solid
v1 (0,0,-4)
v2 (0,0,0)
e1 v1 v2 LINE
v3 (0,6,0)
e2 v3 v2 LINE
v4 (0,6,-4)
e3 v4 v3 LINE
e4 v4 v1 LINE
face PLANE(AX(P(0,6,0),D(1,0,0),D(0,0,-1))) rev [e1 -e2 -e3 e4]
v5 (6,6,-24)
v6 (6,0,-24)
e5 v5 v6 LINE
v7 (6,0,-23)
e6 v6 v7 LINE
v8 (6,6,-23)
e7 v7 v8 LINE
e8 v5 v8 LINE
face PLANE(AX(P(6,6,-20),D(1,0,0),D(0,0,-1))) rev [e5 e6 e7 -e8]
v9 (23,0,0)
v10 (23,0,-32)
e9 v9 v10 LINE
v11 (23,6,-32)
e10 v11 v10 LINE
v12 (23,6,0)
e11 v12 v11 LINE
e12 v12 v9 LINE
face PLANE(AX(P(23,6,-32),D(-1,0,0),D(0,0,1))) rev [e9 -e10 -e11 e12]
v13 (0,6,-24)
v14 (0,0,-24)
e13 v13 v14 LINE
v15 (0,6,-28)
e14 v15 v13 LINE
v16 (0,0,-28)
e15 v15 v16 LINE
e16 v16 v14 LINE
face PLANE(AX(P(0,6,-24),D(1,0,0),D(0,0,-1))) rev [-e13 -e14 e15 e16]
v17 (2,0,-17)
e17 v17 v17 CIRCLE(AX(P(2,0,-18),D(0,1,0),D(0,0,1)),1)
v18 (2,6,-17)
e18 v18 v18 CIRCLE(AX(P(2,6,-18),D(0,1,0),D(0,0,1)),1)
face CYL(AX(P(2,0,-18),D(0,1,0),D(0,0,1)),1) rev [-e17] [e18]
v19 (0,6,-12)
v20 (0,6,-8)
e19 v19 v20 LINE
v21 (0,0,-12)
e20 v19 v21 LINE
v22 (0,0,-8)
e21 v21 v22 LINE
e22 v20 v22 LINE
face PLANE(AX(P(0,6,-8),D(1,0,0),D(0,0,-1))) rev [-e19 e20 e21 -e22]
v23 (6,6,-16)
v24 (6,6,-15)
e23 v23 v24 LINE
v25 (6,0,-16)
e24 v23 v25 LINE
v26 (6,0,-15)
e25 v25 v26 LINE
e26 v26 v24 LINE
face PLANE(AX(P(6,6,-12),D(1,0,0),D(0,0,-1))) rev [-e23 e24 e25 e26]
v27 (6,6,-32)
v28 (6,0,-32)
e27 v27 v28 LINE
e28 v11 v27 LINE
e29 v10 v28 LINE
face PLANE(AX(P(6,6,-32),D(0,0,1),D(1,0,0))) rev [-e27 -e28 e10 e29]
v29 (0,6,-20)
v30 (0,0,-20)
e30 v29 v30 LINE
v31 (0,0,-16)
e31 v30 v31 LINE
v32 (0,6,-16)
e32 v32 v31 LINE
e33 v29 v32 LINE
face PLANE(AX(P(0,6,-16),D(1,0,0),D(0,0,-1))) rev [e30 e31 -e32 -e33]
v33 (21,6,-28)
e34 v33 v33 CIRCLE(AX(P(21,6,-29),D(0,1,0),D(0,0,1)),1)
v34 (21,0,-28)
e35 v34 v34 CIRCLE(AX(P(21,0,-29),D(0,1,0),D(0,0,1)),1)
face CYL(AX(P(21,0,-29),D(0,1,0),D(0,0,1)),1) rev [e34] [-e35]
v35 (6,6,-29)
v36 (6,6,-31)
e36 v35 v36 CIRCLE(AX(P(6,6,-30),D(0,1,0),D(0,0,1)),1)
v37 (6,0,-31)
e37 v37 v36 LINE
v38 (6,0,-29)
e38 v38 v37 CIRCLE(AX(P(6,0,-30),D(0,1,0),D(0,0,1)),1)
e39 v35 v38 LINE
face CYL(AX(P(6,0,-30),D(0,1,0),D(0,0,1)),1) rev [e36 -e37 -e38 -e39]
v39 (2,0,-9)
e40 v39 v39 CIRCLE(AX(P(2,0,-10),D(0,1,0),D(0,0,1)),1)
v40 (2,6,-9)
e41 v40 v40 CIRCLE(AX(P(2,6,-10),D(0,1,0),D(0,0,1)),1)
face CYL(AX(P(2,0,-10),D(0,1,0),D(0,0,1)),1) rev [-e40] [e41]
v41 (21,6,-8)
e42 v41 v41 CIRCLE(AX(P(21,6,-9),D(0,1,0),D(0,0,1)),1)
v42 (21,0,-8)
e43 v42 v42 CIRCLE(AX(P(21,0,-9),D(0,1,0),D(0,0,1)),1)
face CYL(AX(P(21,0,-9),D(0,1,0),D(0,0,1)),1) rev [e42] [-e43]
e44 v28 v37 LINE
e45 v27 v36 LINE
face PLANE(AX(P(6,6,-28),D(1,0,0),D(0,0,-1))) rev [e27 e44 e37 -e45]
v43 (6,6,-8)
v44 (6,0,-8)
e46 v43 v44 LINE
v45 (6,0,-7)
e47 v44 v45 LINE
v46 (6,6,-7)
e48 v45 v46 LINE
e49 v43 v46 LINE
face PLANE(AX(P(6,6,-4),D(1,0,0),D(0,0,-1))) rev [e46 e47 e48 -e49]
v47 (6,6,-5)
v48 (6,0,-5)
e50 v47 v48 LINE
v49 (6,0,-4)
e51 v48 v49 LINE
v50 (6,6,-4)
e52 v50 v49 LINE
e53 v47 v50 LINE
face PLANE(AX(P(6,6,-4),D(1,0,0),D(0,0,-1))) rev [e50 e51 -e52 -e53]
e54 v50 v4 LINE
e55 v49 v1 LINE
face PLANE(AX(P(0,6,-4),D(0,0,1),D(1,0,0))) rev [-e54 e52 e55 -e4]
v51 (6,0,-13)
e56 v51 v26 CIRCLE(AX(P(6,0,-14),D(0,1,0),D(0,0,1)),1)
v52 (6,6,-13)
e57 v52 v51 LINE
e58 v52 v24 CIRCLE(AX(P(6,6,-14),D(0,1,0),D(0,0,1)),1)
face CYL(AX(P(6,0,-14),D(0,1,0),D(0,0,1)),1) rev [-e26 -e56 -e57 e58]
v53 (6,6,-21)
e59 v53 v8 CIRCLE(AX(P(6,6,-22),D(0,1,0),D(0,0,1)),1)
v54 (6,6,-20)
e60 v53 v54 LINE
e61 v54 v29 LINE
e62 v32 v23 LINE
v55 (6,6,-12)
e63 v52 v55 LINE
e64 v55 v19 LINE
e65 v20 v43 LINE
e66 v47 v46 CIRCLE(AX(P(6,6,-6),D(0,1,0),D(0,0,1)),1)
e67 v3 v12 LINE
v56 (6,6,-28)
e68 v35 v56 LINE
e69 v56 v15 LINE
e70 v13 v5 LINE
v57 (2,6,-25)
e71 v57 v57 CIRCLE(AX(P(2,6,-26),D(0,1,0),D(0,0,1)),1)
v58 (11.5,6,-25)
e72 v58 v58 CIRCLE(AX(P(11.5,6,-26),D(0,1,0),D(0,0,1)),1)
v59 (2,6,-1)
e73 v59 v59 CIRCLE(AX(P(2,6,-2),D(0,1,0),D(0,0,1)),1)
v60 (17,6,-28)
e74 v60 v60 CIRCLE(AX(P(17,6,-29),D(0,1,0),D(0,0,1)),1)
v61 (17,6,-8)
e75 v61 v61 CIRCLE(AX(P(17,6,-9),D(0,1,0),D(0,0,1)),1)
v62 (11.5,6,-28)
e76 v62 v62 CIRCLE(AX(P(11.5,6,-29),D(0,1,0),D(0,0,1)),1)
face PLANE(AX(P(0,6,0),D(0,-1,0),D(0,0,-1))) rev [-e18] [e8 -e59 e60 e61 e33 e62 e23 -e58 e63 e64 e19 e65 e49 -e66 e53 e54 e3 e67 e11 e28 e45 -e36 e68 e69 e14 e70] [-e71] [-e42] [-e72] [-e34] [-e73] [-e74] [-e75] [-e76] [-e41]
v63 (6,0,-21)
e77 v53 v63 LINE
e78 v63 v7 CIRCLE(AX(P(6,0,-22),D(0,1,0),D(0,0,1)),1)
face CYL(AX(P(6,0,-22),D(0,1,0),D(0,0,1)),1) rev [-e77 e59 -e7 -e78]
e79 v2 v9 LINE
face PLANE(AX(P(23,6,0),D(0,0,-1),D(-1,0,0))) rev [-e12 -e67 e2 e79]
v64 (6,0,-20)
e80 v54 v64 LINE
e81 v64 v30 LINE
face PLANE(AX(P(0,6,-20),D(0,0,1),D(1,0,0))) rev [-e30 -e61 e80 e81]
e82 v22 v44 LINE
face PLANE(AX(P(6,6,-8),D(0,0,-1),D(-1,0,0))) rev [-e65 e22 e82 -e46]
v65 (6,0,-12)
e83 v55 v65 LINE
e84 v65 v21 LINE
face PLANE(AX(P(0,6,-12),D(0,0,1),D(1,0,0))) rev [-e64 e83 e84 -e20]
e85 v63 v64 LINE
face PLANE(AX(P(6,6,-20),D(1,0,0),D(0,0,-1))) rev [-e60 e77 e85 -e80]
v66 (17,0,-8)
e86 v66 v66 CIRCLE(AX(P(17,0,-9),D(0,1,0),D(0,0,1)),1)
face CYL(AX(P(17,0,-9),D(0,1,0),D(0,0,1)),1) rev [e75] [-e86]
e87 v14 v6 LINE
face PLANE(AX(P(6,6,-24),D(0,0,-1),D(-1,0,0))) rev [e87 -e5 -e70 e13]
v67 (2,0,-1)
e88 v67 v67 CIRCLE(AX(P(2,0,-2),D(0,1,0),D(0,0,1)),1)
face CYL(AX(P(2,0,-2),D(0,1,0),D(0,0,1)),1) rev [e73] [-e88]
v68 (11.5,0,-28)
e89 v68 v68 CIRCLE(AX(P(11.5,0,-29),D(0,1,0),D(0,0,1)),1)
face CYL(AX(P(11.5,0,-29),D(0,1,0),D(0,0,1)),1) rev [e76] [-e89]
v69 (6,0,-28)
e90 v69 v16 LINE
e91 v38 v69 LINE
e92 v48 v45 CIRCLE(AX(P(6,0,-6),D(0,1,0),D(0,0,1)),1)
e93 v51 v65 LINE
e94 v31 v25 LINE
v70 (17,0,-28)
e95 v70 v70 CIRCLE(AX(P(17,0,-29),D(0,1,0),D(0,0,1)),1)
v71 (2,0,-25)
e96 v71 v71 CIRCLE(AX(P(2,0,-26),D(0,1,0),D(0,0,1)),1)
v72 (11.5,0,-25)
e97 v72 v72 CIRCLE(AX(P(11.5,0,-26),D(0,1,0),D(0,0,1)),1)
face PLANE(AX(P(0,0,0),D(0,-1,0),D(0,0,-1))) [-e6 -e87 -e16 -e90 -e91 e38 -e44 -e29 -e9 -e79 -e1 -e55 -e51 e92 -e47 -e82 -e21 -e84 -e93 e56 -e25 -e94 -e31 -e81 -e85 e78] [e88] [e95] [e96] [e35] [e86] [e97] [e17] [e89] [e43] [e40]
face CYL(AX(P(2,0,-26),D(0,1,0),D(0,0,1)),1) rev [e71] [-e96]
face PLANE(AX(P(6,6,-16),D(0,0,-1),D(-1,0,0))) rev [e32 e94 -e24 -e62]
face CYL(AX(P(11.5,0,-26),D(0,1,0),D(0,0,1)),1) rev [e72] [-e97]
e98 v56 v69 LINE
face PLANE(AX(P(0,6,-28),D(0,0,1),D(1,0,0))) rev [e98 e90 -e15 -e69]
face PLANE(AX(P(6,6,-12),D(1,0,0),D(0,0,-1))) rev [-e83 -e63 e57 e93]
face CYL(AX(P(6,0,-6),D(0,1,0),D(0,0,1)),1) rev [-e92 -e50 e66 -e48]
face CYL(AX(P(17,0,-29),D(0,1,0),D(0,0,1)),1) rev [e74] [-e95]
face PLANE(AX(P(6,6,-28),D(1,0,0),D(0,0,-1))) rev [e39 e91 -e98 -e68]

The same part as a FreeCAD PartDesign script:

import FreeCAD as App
import Part
import Sketcher
from FreeCAD import Vector
Q = App.Units.Quantity

doc = App.newDocument("Part")
params = doc.addObject("Spreadsheet::Sheet", "Params")
for row, (alias, value) in enumerate([
    ("sketch1_width", "23 mm"),
    ("sketch1_width2", "17 mm"),
    ("sketch1_height", "4 mm"),
    ("pad1_length", "6 mm"),
    ("sketch2_diameter", "2 mm"),
    ("sketch3_diameter", "2 mm"),
], start=1):
    params.set(f"A{row}", alias)
    params.set(f"B{row}", "=" + value)
    params.setAlias(f"B{row}", alias)

body = doc.addObject("PartDesign::Body", "Body")

# Sketch on XZ plane
sketch1 = body.newObject("Sketcher::SketchObject", "Sketch")
sketch1.AttachmentSupport = (doc.getObject("XZ_Plane"), [""])
sketch1.MapMode = "FlatFace"
sketch1.addGeometry([
    Part.LineSegment(Vector(0, -4, 0), Vector(0, 0, 0)),  # 0
    Part.LineSegment(Vector(0, 0, 0), Vector(23, 0, 0)),  # 1
    Part.LineSegment(Vector(23, 0, 0), Vector(23, -32, 0)),  # 2
    Part.LineSegment(Vector(23, -32, 0), Vector(6, -32, 0)),  # 3
    Part.LineSegment(Vector(6, -32, 0), Vector(6, -28, 0)),  # 4
    Part.LineSegment(Vector(6, -28, 0), Vector(0, -28, 0)),  # 5
    Part.LineSegment(Vector(0, -28, 0), Vector(0, -24, 0)),  # 6
    Part.LineSegment(Vector(0, -24, 0), Vector(6, -24, 0)),  # 7
    Part.LineSegment(Vector(6, -24, 0), Vector(6, -20, 0)),  # 8
    Part.LineSegment(Vector(6, -20, 0), Vector(0, -20, 0)),  # 9
    Part.LineSegment(Vector(0, -20, 0), Vector(0, -16, 0)),  # 10
    Part.LineSegment(Vector(0, -16, 0), Vector(6, -16, 0)),  # 11
    Part.LineSegment(Vector(6, -16, 0), Vector(6, -12, 0)),  # 12
    Part.LineSegment(Vector(6, -12, 0), Vector(0, -12, 0)),  # 13
    Part.LineSegment(Vector(0, -12, 0), Vector(0, -8, 0)),  # 14
    Part.LineSegment(Vector(0, -8, 0), Vector(6, -8, 0)),  # 15
    Part.LineSegment(Vector(6, -8, 0), Vector(6, -4, 0)),  # 16
    Part.LineSegment(Vector(6, -4, 0), Vector(0, -4, 0)),  # 17
], False)
sketch1.addConstraint([
    Sketcher.Constraint("Coincident", 0, 2, 1, 1),
    Sketcher.Constraint("Coincident", 1, 2, 2, 1),
    Sketcher.Constraint("Coincident", 2, 2, 3, 1),
    Sketcher.Constraint("Coincident", 3, 2, 4, 1),
    Sketcher.Constraint("Coincident", 4, 2, 5, 1),
    Sketcher.Constraint("Coincident", 5, 2, 6, 1),
    Sketcher.Constraint("Coincident", 6, 2, 7, 1),
    Sketcher.Constraint("Coincident", 7, 2, 8, 1),
    Sketcher.Constraint("Coincident", 8, 2, 9, 1),
    Sketcher.Constraint("Coincident", 9, 2, 10, 1),
    Sketcher.Constraint("Coincident", 10, 2, 11, 1),
    Sketcher.Constraint("Coincident", 11, 2, 12, 1),
    Sketcher.Constraint("Coincident", 12, 2, 13, 1),
    Sketcher.Constraint("Coincident", 13, 2, 14, 1),
    Sketcher.Constraint("Coincident", 14, 2, 15, 1),
    Sketcher.Constraint("Coincident", 15, 2, 16, 1),
    Sketcher.Constraint("Coincident", 16, 2, 17, 1),
    Sketcher.Constraint("Coincident", 17, 2, 0, 1),
    Sketcher.Constraint("Vertical", 0),
    Sketcher.Constraint("Horizontal", 1),
    Sketcher.Constraint("Vertical", 2),
    Sketcher.Constraint("Horizontal", 3),
    Sketcher.Constraint("Vertical", 4),
    Sketcher.Constraint("Horizontal", 5),
    Sketcher.Constraint("Vertical", 6),
    Sketcher.Constraint("Horizontal", 7),
    Sketcher.Constraint("Vertical", 8),
    Sketcher.Constraint("Horizontal", 9),
    Sketcher.Constraint("Vertical", 10),
    Sketcher.Constraint("Horizontal", 11),
    Sketcher.Constraint("Vertical", 12),
    Sketcher.Constraint("Horizontal", 13),
    Sketcher.Constraint("Vertical", 14),
    Sketcher.Constraint("Horizontal", 15),
    Sketcher.Constraint("Vertical", 16),
    Sketcher.Constraint("Horizontal", 17),
    Sketcher.Constraint("Coincident", 0, 2, -1, 1),
    Sketcher.Constraint("PointOnObject", 5, 2, -2),
    Sketcher.Constraint("PointOnObject", 9, 2, -2),
    Sketcher.Constraint("PointOnObject", 13, 2, -2),
    Sketcher.Constraint("Vertical", 4, 2, 7, 2),
    Sketcher.Constraint("Vertical", 8, 2, 11, 2),
    Sketcher.Constraint("Vertical", 12, 2, 15, 2),
    Sketcher.Constraint("Equal", 0, 4),
    Sketcher.Constraint("Equal", 4, 6),
    Sketcher.Constraint("Equal", 6, 8),
    Sketcher.Constraint("Equal", 8, 10),
    Sketcher.Constraint("Equal", 10, 12),
    Sketcher.Constraint("Equal", 12, 14),
    Sketcher.Constraint("Equal", 14, 16),
    Sketcher.Constraint("DistanceX", 1, 1, 1, 2, Q("23 mm")),
    Sketcher.Constraint("DistanceX", 3, 2, 3, 1, Q("17 mm")),
    Sketcher.Constraint("DistanceY", 0, 1, 0, 2, Q("4 mm")),
])
sketch1.setExpression("Constraints[50]", "Params.sketch1_width")
sketch1.setExpression("Constraints[51]", "Params.sketch1_width2")
sketch1.setExpression("Constraints[52]", "Params.sketch1_height")
pad1 = body.newObject("PartDesign::Pad", "Pad")
pad1.Profile = sketch1
pad1.setExpression("Length", "Params.pad1_length")
pad1.Reversed = True

# Sketch on XZ plane
sketch2 = body.newObject("Sketcher::SketchObject", "Sketch001")
sketch2.AttachmentSupport = (doc.getObject("XZ_Plane"), [""])
sketch2.MapMode = "FlatFace"
sketch2.AttachmentOffset = App.Placement(Vector(0, 0, -6), App.Rotation())
sketch2.addGeometry([
    Part.Circle(Vector(2, -26, 0), Vector(0, 0, 1), 1),  # 0
    Part.Circle(Vector(2, -18, 0), Vector(0, 0, 1), 1),  # 1
    Part.Circle(Vector(2, -10, 0), Vector(0, 0, 1), 1),  # 2
    Part.Circle(Vector(2, -2, 0), Vector(0, 0, 1), 1),  # 3
    Part.Circle(Vector(6, -22, 0), Vector(0, 0, 1), 1),  # 4
    Part.Circle(Vector(6, -30, 0), Vector(0, 0, 1), 1),  # 5
    Part.Circle(Vector(6, -14, 0), Vector(0, 0, 1), 1),  # 6
    Part.Circle(Vector(6, -6, 0), Vector(0, 0, 1), 1),  # 7
    Part.Circle(Vector(21, -29, 0), Vector(0, 0, 1), 1),  # 8
    Part.Circle(Vector(21, -9, 0), Vector(0, 0, 1), 1),  # 9
    Part.Circle(Vector(17, -29, 0), Vector(0, 0, 1), 1),  # 10
    Part.Circle(Vector(17, -9, 0), Vector(0, 0, 1), 1),  # 11
], False)
sketch2.addConstraint([
    Sketcher.Constraint("Equal", 0, 1),
    Sketcher.Constraint("Equal", 1, 2),
    Sketcher.Constraint("Equal", 2, 3),
    Sketcher.Constraint("Equal", 3, 4),
    Sketcher.Constraint("Equal", 4, 5),
    Sketcher.Constraint("Equal", 5, 6),
    Sketcher.Constraint("Equal", 6, 7),
    Sketcher.Constraint("Equal", 7, 8),
    Sketcher.Constraint("Equal", 8, 9),
    Sketcher.Constraint("Equal", 9, 10),
    Sketcher.Constraint("Equal", 10, 11),
    Sketcher.Constraint("Horizontal", 8, 3, 10, 3),
    Sketcher.Constraint("Horizontal", 9, 3, 11, 3),
    Sketcher.Constraint("Vertical", 0, 3, 1, 3),
    Sketcher.Constraint("Vertical", 1, 3, 2, 3),
    Sketcher.Constraint("Vertical", 2, 3, 3, 3),
    Sketcher.Constraint("Vertical", 4, 3, 5, 3),
    Sketcher.Constraint("Vertical", 5, 3, 6, 3),
    Sketcher.Constraint("Vertical", 6, 3, 7, 3),
    Sketcher.Constraint("Vertical", 8, 3, 9, 3),
    Sketcher.Constraint("Vertical", 10, 3, 11, 3),
    Sketcher.Constraint("Diameter", 0, Q("2 mm")),
    Sketcher.Constraint("DistanceX", -1, 1, 0, 3, Q("2 mm")),
    Sketcher.Constraint("DistanceY", 0, 3, -1, 1, Q("26 mm")),
    Sketcher.Constraint("DistanceY", 1, 3, -1, 1, Q("18 mm")),
    Sketcher.Constraint("DistanceY", 2, 3, -1, 1, Q("10 mm")),
    Sketcher.Constraint("DistanceY", 3, 3, -1, 1, Q("2 mm")),
    Sketcher.Constraint("DistanceX", -1, 1, 4, 3, Q("6 mm")),
    Sketcher.Constraint("DistanceY", 4, 3, -1, 1, Q("22 mm")),
    Sketcher.Constraint("DistanceY", 5, 3, -1, 1, Q("30 mm")),
    Sketcher.Constraint("DistanceY", 6, 3, -1, 1, Q("14 mm")),
    Sketcher.Constraint("DistanceY", 7, 3, -1, 1, Q("6 mm")),
    Sketcher.Constraint("DistanceX", -1, 1, 8, 3, Q("21 mm")),
    Sketcher.Constraint("DistanceY", 8, 3, -1, 1, Q("29 mm")),
    Sketcher.Constraint("DistanceY", 9, 3, -1, 1, Q("9 mm")),
    Sketcher.Constraint("DistanceX", -1, 1, 10, 3, Q("17 mm")),
])
sketch2.setExpression("Constraints[21]", "Params.sketch2_diameter")
pocket1 = body.newObject("PartDesign::Pocket", "Pocket")
pocket1.Profile = sketch2
pocket1.Type = "ThroughAll"
pocket1.Reversed = True

# Sketch on XZ plane
sketch3 = body.newObject("Sketcher::SketchObject", "Sketch002")
sketch3.AttachmentSupport = (doc.getObject("XZ_Plane"), [""])
sketch3.MapMode = "FlatFace"
sketch3.AttachmentOffset = App.Placement(Vector(0, 0, -6), App.Rotation())
sketch3.addGeometry([
    Part.Circle(Vector(11.5, -29, 0), Vector(0, 0, 1), 1),
    Part.Circle(Vector(11.5, -26, 0), Vector(0, 0, 1), 1),
], False)
sketch3.addConstraint([
    Sketcher.Constraint("Equal", 0, 1),
    Sketcher.Constraint("Vertical", 0, 3, 1, 3),
    Sketcher.Constraint("Diameter", 0, Q("2 mm")),
    Sketcher.Constraint("DistanceY", 0, 3, -1, 1, Q("29 mm")),
    Sketcher.Constraint("DistanceY", 1, 3, -1, 1, Q("26 mm")),
    Sketcher.Constraint("DistanceX", -1, 1, 0, 3, Q("11.5 mm")),
])
sketch3.setExpression("Constraints[2]", "Params.sketch3_diameter")
pocket2 = body.newObject("PartDesign::Pocket", "Pocket001")
pocket2.Profile = sketch3
pocket2.Type = "ThroughAll"
pocket2.Reversed = True

doc.recompute()
